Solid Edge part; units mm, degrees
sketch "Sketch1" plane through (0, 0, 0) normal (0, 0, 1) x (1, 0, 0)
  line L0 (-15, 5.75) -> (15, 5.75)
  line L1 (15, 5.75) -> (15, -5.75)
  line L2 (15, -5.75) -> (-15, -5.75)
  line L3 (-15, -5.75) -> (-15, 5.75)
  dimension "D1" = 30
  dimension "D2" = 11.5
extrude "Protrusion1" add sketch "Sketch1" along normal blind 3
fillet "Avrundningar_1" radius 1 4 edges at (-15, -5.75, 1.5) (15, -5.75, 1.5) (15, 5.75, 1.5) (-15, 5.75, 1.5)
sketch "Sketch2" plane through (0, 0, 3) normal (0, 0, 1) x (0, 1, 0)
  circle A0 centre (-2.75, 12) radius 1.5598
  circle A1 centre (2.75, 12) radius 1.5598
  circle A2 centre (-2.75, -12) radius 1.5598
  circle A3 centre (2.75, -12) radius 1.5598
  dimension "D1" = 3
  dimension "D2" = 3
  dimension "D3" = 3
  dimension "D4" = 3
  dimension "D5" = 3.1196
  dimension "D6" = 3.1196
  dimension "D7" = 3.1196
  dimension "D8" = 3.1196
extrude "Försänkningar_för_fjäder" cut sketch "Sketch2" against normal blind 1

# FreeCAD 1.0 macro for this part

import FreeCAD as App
import Part
import Sketcher

V = App.Vector
Q = App.Units.Quantity


def edges_at(feature, points):
    """Names of the edges that pass closest to the given points."""
    edges = feature.Shape.Edges
    near = lambda p: min(range(len(edges)), key=lambda i: edges[i].distToShape(Part.Vertex(*p))[0])
    return sorted({f"Edge{near(p) + 1}" for p in points})

doc = App.newDocument("Part")
body = doc.addObject("PartDesign::Body", "Body")

sketch1 = body.newObject("Sketcher::SketchObject", "Sketch")
sketch1.AttachmentSupport = (doc.getObject("XY_Plane"), [""])
sketch1.MapMode = "FlatFace"
sketch1.addGeometry(Part.LineSegment(V(15, 6, 0), V(-15, 6, 0)), False)
sketch1.addGeometry(Part.LineSegment(V(-15, 6, 0), V(-15, -6, 0)), False)
sketch1.addGeometry(Part.LineSegment(V(-15, -6, 0), V(15, -6, 0)), False)
sketch1.addGeometry(Part.LineSegment(V(15, -6, 0), V(15, 6, 0)), False)
sketch1.addConstraint(Sketcher.Constraint("Coincident", 0, 2, 1, 1))
sketch1.addConstraint(Sketcher.Constraint("Coincident", 1, 2, 2, 1))
sketch1.addConstraint(Sketcher.Constraint("Coincident", 2, 2, 3, 1))
sketch1.addConstraint(Sketcher.Constraint("Coincident", 3, 2, 0, 1))
sketch1.addConstraint(Sketcher.Constraint("Horizontal", 0))
sketch1.addConstraint(Sketcher.Constraint("Vertical", 1))
sketch1.addConstraint(Sketcher.Constraint("Horizontal", 2))
sketch1.addConstraint(Sketcher.Constraint("Vertical", 3))
sketch1.addConstraint(Sketcher.Constraint("Symmetric", 0, 2, 2, 2, -1, 1))
sketch1.addConstraint(Sketcher.Constraint("DistanceX", 0, 2, -1, 1, Q("15 mm")))
sketch1.addConstraint(Sketcher.Constraint("DistanceY", 1, 2, 1, 1, Q("11.5 mm")))
pad1 = body.newObject("PartDesign::Pad", "Pad")
pad1.Profile = sketch1
pad1.Length = 3
doc.recompute()

fillet = body.newObject("PartDesign::Fillet", "Fillet")
fillet.Base = (pad1, edges_at(pad1, [
    (-15, -5.75, 1.5),
    (15, -5.75, 1.5),
    (15, 5.75, 1.5),
    (-15, 5.75, 1.5),
]))
fillet.Radius = 1

sketch2 = body.newObject("Sketcher::SketchObject", "Sketch001")
sketch2.AttachmentSupport = (doc.getObject("XY_Plane"), [""])
sketch2.MapMode = "FlatFace"
sketch2.AttachmentOffset = App.Placement(V(0, 0, 3), App.Rotation())
sketch2.addGeometry(Part.Circle(V(-12, -2.8, 0), V(0, 0, 1), 1.6), False)
sketch2.addGeometry(Part.Circle(V(-12, 2.8, 0), V(0, 0, 1), 1.6), False)
sketch2.addGeometry(Part.Circle(V(12, -2.8, 0), V(0, 0, 1), 1.6), False)
sketch2.addGeometry(Part.Circle(V(12, 2.8, 0), V(0, 0, 1), 1.6), False)
sketch2.addConstraint(Sketcher.Constraint("Equal", 0, 1))
sketch2.addConstraint(Sketcher.Constraint("Equal", 1, 2))
sketch2.addConstraint(Sketcher.Constraint("Equal", 2, 3))
sketch2.addConstraint(Sketcher.Constraint("Symmetric", 1, 3, 2, 3, -1, 1))
sketch2.addConstraint(Sketcher.Constraint("Symmetric", 0, 3, 3, 3, -1, 1))
sketch2.addConstraint(Sketcher.Constraint("Symmetric", 0, 3, 2, 3, -2))
sketch2.addConstraint(Sketcher.Constraint("DistanceY", 0, 3, -1, 1, Q("2.75 mm")))
sketch2.addConstraint(Sketcher.Constraint("DistanceX", 0, 3, -1, 1, Q("12 mm")))
sketch2.addConstraint(Sketcher.Constraint("Diameter", 0, Q("3.1196 mm")))
pocket1 = body.newObject("PartDesign::Pocket", "Pocket")
pocket1.Profile = sketch2
pocket1.Length = 1

doc.recompute()
